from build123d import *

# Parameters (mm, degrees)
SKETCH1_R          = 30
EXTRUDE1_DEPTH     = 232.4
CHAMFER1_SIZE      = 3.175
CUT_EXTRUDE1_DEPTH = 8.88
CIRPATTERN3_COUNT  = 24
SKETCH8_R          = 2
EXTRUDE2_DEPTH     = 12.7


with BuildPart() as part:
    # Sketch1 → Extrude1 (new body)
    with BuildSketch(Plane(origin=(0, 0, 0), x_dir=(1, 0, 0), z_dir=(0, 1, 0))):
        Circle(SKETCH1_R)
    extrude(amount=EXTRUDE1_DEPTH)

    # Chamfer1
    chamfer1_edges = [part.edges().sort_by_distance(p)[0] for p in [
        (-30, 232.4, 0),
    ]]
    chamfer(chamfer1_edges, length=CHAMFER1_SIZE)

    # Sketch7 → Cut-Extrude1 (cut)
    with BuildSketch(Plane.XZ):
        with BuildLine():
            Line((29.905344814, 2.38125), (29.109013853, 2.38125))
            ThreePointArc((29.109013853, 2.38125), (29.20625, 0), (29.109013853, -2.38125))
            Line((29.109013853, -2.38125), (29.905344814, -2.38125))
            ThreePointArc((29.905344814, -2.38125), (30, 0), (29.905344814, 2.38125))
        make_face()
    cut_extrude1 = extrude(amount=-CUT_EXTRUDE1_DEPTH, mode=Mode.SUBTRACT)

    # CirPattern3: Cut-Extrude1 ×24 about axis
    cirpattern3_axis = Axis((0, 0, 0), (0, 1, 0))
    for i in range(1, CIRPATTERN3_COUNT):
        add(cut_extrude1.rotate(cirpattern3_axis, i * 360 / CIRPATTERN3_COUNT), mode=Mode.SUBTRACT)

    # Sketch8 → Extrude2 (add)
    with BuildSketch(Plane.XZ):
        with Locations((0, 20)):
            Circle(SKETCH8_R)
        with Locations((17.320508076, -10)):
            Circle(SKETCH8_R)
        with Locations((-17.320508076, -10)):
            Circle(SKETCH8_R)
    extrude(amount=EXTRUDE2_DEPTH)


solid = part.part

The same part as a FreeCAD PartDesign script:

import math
import FreeCAD as App
import Part
import Sketcher
from FreeCAD import Vector


def edges_at(feature, points):
    """Names of the edges that pass closest to the given points."""
    edges = feature.Shape.Edges
    near = lambda p: min(range(len(edges)), key=lambda i: edges[i].distToShape(Part.Vertex(*p))[0])
    return sorted({f"Edge{near(p) + 1}" for p in points})

doc = App.newDocument("Part")
params = doc.addObject("Spreadsheet::Sheet", "Params")
for row, (alias, value) in enumerate([
    ("sketch1_diameter", "60 mm"),
    ("pad1_length", "232.4 mm"),
    ("chamfer_size", "3.175 mm"),
    ("sketch2_radius", "30 mm"),
    ("pocket1_length", "8.88 mm"),
    ("sketch3_diameter", "4 mm"),
    ("pad2_length", "12.7 mm"),
], start=1):
    params.set(f"A{row}", alias)
    params.set(f"B{row}", "=" + value)
    params.setAlias(f"B{row}", alias)

body = doc.addObject("PartDesign::Body", "Body")

# Sketch on XZ plane
sketch1 = body.newObject("Sketcher::SketchObject", "Sketch")
sketch1.AttachmentSupport = (doc.getObject("XZ_Plane"), [""])
sketch1.MapMode = "FlatFace"
sketch1.addGeometry(Part.Circle(Vector(0, 0, 0), Vector(0, 0, 1), 30), False)
sketch1.addConstraint(Sketcher.Constraint("Coincident", 0, 3, -1, 1))
sketch1.addConstraint(Sketcher.Constraint("Diameter", 0, 60.0))
sketch1.setExpression("Constraints[1]", "Params.sketch1_diameter")
pad1 = body.newObject("PartDesign::Pad", "Pad")
pad1.Profile = sketch1
pad1.setExpression("Length", "Params.pad1_length")
pad1.Reversed = True
doc.recompute()

chamfer = body.newObject("PartDesign::Chamfer", "Chamfer")
chamfer.Base = (pad1, edges_at(pad1, [(-30, 232.4, 0)]))
chamfer.setExpression("Size", "Params.chamfer_size")

# Sketch on XZ plane
sketch2 = body.newObject("Sketcher::SketchObject", "Sketch001")
sketch2.AttachmentSupport = (doc.getObject("XZ_Plane"), [""])
sketch2.MapMode = "FlatFace"
sketch2.addGeometry(Part.LineSegment(Vector(29.9, 2.4, 0), Vector(29.1, 2.4, 0)), False)
sketch2.addGeometry(Part.ArcOfCircle(Part.Circle(Vector(0, 0, 0), Vector(0, 0, 1), 29.2), math.radians(-4.68), math.radians(4.68)), False)
sketch2.addGeometry(Part.LineSegment(Vector(29.1, -2.4, 0), Vector(29.9, -2.4, 0)), False)
sketch2.addGeometry(Part.ArcOfCircle(Part.Circle(Vector(0, 0, 0), Vector(0, 0, 1), 30), math.radians(-4.55), math.radians(4.55)), False)
sketch2.addConstraint(Sketcher.Constraint("Coincident", 0, 2, 1, 2))
sketch2.addConstraint(Sketcher.Constraint("Coincident", 1, 1, 2, 1))
sketch2.addConstraint(Sketcher.Constraint("Coincident", 2, 2, 3, 1))
sketch2.addConstraint(Sketcher.Constraint("Coincident", 3, 2, 0, 1))
sketch2.addConstraint(Sketcher.Constraint("Horizontal", 0))
sketch2.addConstraint(Sketcher.Constraint("Horizontal", 2))
sketch2.addConstraint(Sketcher.Constraint("Coincident", 1, 3, -1, 1))
sketch2.addConstraint(Sketcher.Constraint("Coincident", 3, 3, -1, 1))
sketch2.addConstraint(Sketcher.Constraint("Vertical", 0, 2, 1, 1))
sketch2.addConstraint(Sketcher.Constraint("Radius", 3, 30.0))
sketch2.addConstraint(Sketcher.Constraint("Radius", 1, 29.20625))
sketch2.addConstraint(Sketcher.Constraint("DistanceY", 1, 1, 0, 2, 4.7625))
sketch2.setExpression("Constraints[9]", "Params.sketch2_radius")
pocket1 = body.newObject("PartDesign::Pocket", "Pocket")
pocket1.Profile = sketch2
pocket1.setExpression("Length", "Params.pocket1_length")
doc.recompute()

polarpattern = body.newObject("PartDesign::PolarPattern", "PolarPattern")
polarpattern.Originals = [pocket1]
polarpattern.Axis = (doc.getObject("Y_Axis"), [""])
polarpattern.Angle = 360
polarpattern.Occurrences = 24
body.Tip = polarpattern

# Sketch on XZ plane
sketch3 = body.newObject("Sketcher::SketchObject", "Sketch002")
sketch3.AttachmentSupport = (doc.getObject("XZ_Plane"), [""])
sketch3.MapMode = "FlatFace"
sketch3.addGeometry(Part.Circle(Vector(0, 20, 0), Vector(0, 0, 1), 2), False)
sketch3.addGeometry(Part.Circle(Vector(17.3, -10, 0), Vector(0, 0, 1), 2), False)
sketch3.addGeometry(Part.Circle(Vector(-17.3, -10, 0), Vector(0, 0, 1), 2), False)
sketch3.addConstraint(Sketcher.Constraint("Equal", 0, 1))
sketch3.addConstraint(Sketcher.Constraint("Equal", 1, 2))
sketch3.addConstraint(Sketcher.Constraint("Symmetric", 1, 3, 2, 3, -2))
sketch3.addConstraint(Sketcher.Constraint("PointOnObject", 0, 3, -2))
sketch3.addConstraint(Sketcher.Constraint("Diameter", 0, 4.0))
sketch3.addConstraint(Sketcher.Constraint("DistanceY", -1, 1, 0, 3, 20.0))
sketch3.addConstraint(Sketcher.Constraint("DistanceY", 1, 3, -1, 1, 10.0))
sketch3.addConstraint(Sketcher.Constraint("DistanceX", -1, 1, 1, 3, 17.320508))
sketch3.setExpression("Constraints[4]", "Params.sketch3_diameter")
pad2 = body.newObject("PartDesign::Pad", "Pad001")
pad2.Profile = sketch3
pad2.setExpression("Length", "Params.pad2_length")

doc.recompute()
